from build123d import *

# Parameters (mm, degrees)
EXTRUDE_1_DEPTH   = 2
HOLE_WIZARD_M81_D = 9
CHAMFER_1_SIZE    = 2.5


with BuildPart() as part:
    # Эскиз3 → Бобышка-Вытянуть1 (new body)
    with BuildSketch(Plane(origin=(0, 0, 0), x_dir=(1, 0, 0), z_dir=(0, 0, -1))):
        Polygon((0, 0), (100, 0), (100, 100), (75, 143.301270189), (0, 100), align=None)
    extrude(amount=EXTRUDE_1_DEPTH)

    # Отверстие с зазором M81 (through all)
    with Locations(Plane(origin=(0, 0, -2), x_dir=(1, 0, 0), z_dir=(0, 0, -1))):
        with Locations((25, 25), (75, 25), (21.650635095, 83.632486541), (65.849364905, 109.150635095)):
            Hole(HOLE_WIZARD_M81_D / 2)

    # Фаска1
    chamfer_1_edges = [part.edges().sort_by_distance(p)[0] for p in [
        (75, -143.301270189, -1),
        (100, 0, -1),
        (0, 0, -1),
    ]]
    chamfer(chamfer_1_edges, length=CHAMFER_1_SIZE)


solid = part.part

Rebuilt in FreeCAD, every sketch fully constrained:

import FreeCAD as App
import Part
import Sketcher
from FreeCAD import Vector
Q = App.Units.Quantity


def edges_at(feature, points):
    """Names of the edges that pass closest to the given points."""
    edges = feature.Shape.Edges
    near = lambda p: min(range(len(edges)), key=lambda i: edges[i].distToShape(Part.Vertex(*p))[0])
    return sorted({f"Edge{near(p) + 1}" for p in points})

doc = App.newDocument("Part")
params = doc.addObject("Spreadsheet::Sheet", "Params")
for row, (alias, value) in enumerate([
    ("sketch1_width", "100 mm"),
    ("pad1_length", "2 mm"),
    ("sketch2_diameter", "9 mm"),
    ("hole_diameter", "9 mm"),
    ("chamfer_size", "2.5 mm"),
], start=1):
    params.set(f"A{row}", alias)
    params.set(f"B{row}", "=" + value)
    params.setAlias(f"B{row}", alias)

body = doc.addObject("PartDesign::Body", "Body")

# Sketch on XY plane
sketch1 = body.newObject("Sketcher::SketchObject", "Sketch")
sketch1.AttachmentSupport = (doc.getObject("XY_Plane"), [""])
sketch1.MapMode = "FlatFace"
sketch1.addGeometry(Part.LineSegment(Vector(0, 0, 0), Vector(100, 0, 0)), False)
sketch1.addGeometry(Part.LineSegment(Vector(100, 0, 0), Vector(100, -100, 0)), False)
sketch1.addGeometry(Part.LineSegment(Vector(100, -100, 0), Vector(75, -143, 0)), False)
sketch1.addGeometry(Part.LineSegment(Vector(75, -143, 0), Vector(0, -100, 0)), False)
sketch1.addGeometry(Part.LineSegment(Vector(0, -100, 0), Vector(0, 0, 0)), False)
sketch1.addConstraint(Sketcher.Constraint("Coincident", 0, 2, 1, 1))
sketch1.addConstraint(Sketcher.Constraint("Coincident", 1, 2, 2, 1))
sketch1.addConstraint(Sketcher.Constraint("Coincident", 2, 2, 3, 1))
sketch1.addConstraint(Sketcher.Constraint("Coincident", 3, 2, 4, 1))
sketch1.addConstraint(Sketcher.Constraint("Coincident", 4, 2, 0, 1))
sketch1.addConstraint(Sketcher.Constraint("Horizontal", 0))
sketch1.addConstraint(Sketcher.Constraint("Vertical", 1))
sketch1.addConstraint(Sketcher.Constraint("Vertical", 4))
sketch1.addConstraint(Sketcher.Constraint("Coincident", 4, 2, -1, 1))
sketch1.addConstraint(Sketcher.Constraint("Perpendicular", 2, 3))
sketch1.addConstraint(Sketcher.Constraint("Horizontal", 1, 2, 3, 2))
sketch1.addConstraint(Sketcher.Constraint("Equal", 0, 1))
sketch1.addConstraint(Sketcher.Constraint("DistanceX", 0, 1, 0, 2, 100.0))
sketch1.addConstraint(Sketcher.Constraint("Angle", 2, Q("-120 deg")))
sketch1.setExpression("Constraints[12]", "Params.sketch1_width")
pad1 = body.newObject("PartDesign::Pad", "Pad")
pad1.Profile = sketch1
pad1.setExpression("Length", "Params.pad1_length")
pad1.Reversed = True

# Sketch on XY plane
sketch2 = body.newObject("Sketcher::SketchObject", "Sketch001")
sketch2.AttachmentSupport = (doc.getObject("XY_Plane"), [""])
sketch2.MapMode = "FlatFace"
sketch2.AttachmentOffset = App.Placement(Vector(0, 0, -2), App.Rotation())
sketch2.addGeometry(Part.Circle(Vector(25, -25, 0), Vector(0, 0, 1), 4.5), False)
sketch2.addGeometry(Part.Circle(Vector(75, -25, 0), Vector(0, 0, 1), 4.5), False)
sketch2.addGeometry(Part.Circle(Vector(21.7, -83.6, 0), Vector(0, 0, 1), 4.5), False)
sketch2.addGeometry(Part.Circle(Vector(65.8, -109.2, 0), Vector(0, 0, 1), 4.5), False)
sketch2.addConstraint(Sketcher.Constraint("Equal", 0, 1))
sketch2.addConstraint(Sketcher.Constraint("Equal", 1, 2))
sketch2.addConstraint(Sketcher.Constraint("Equal", 2, 3))
sketch2.addConstraint(Sketcher.Constraint("Horizontal", 0, 3, 1, 3))
sketch2.addConstraint(Sketcher.Constraint("Diameter", 0, 9.0))
sketch2.addConstraint(Sketcher.Constraint("DistanceX", -1, 1, 0, 3, 25.0))
sketch2.addConstraint(Sketcher.Constraint("DistanceY", 0, 3, -1, 1, 25.0))
sketch2.addConstraint(Sketcher.Constraint("DistanceX", -1, 1, 1, 3, 75.0))
sketch2.addConstraint(Sketcher.Constraint("DistanceX", 2, 3, 3, 3, 44.19873))
sketch2.addConstraint(Sketcher.Constraint("DistanceY", 3, 3, 2, 3, 25.518149))
sketch2.addConstraint(Sketcher.Constraint("DistanceX", -1, 1, 2, 3, 21.650635))
sketch2.addConstraint(Sketcher.Constraint("DistanceY", 2, 3, -1, 1, 83.632487))
sketch2.setExpression("Constraints[4]", "Params.sketch2_diameter")
doc.recompute()
hole = body.newObject("PartDesign::Hole", "Hole")
hole.Profile = sketch2
hole.ThreadType = "None"
hole.setExpression("Diameter", "Params.hole_diameter")
hole.DepthType = "ThroughAll"
hole.Reversed = True
doc.recompute()

chamfer = body.newObject("PartDesign::Chamfer", "Chamfer")
chamfer.Base = (hole, edges_at(hole, [(75, -143.301, -1), (100, 0, -1), (0, 0, -1)]))
chamfer.setExpression("Size", "Params.chamfer_size")

doc.recompute()
